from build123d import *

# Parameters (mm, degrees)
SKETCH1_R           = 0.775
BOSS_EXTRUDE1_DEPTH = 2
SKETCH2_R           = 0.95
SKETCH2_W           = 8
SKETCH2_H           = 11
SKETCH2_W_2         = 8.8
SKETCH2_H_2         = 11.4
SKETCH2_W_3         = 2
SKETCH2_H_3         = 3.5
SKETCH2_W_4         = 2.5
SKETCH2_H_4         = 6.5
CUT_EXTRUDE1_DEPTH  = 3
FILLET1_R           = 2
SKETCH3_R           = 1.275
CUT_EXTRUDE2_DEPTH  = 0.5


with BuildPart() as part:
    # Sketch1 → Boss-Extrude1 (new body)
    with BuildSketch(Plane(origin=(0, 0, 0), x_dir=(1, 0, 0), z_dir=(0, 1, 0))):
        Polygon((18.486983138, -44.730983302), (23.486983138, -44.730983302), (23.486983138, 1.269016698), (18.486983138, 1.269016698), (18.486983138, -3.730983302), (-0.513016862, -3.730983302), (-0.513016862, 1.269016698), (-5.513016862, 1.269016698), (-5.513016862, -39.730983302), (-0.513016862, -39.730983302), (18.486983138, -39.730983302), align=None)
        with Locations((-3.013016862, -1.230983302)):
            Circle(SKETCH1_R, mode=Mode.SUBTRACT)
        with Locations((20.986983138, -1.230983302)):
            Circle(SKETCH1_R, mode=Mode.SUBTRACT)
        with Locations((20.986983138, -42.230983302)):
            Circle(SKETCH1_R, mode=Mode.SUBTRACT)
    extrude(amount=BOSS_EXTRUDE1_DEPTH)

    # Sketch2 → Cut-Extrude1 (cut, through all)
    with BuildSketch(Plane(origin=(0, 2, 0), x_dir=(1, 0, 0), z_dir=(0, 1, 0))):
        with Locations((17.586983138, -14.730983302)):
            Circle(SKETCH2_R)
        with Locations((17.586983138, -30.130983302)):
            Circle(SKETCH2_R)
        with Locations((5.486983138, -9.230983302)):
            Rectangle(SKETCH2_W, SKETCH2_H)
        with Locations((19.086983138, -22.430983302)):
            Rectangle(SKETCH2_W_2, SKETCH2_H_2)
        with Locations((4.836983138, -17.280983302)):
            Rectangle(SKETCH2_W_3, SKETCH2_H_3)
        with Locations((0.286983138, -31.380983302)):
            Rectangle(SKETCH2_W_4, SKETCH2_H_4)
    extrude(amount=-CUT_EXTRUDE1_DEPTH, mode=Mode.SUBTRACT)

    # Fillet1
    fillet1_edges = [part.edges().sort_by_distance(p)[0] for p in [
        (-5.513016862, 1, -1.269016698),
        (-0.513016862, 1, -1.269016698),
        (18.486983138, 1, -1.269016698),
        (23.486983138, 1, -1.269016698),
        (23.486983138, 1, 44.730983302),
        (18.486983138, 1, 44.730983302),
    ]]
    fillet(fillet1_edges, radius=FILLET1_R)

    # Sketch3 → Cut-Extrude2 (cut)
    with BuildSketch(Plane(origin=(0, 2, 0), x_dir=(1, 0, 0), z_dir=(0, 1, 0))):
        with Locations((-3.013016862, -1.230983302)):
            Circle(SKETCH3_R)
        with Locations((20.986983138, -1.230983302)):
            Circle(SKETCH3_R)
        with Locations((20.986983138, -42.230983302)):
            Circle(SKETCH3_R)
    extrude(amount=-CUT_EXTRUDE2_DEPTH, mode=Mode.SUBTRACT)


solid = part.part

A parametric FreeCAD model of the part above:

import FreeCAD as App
import Part
import Sketcher

V = App.Vector


def edges_at(feature, points):
    """Names of the edges that pass closest to the given points."""
    edges = feature.Shape.Edges
    near = lambda p: min(range(len(edges)), key=lambda i: edges[i].distToShape(Part.Vertex(*p))[0])
    return sorted({f"Edge{near(p) + 1}" for p in points})


def add_polygon(sketch, points):
    """Adds a closed chain of lines whose ends are joined by coincident constraints."""
    first, n = sketch.GeometryCount, len(points)
    for a, b in zip(points, points[1:] + points[:1]):
        sketch.addGeometry(Part.LineSegment(App.Vector(*a, 0), App.Vector(*b, 0)), False)
    for i in range(n):
        sketch.addConstraint(Sketcher.Constraint("Coincident", first + i, 2, first + (i + 1) % n, 1))

doc = App.newDocument("Part")
body = doc.addObject("PartDesign::Body", "Body")

sketch1 = doc.addObject("Sketcher::SketchObject", "Sketch")
body.addObject(sketch1)
sketch1.AttachmentSupport = (doc.XZ_Plane, [""])
sketch1.MapMode = "FlatFace"
add_polygon(sketch1, [(18.486983, 44.730983), (23.486983, 44.730983), (23.486983, -1.269017), (18.486983, -1.269017), (18.486983, 3.730983), (-0.513017, 3.730983), (-0.513017, -1.269017), (-5.513017, -1.269017), (-5.513017, 39.730983), (18.486983, 39.730983)])
sketch1.addGeometry(Part.Circle(V(20.986983, 42.230983, 0), V(0, 0, 1), 0.775), False)
sketch1.addGeometry(Part.Circle(V(-3.013017, 1.230983, 0), V(0, 0, 1), 0.775), False)
sketch1.addGeometry(Part.Circle(V(20.986983, 1.230983, 0), V(0, 0, 1), 0.775), False)
sketch1.addConstraint(Sketcher.Constraint("Horizontal", 0))
sketch1.addConstraint(Sketcher.Constraint("Vertical", 1))
sketch1.addConstraint(Sketcher.Constraint("Horizontal", 2))
sketch1.addConstraint(Sketcher.Constraint("Vertical", 3))
sketch1.addConstraint(Sketcher.Constraint("Horizontal", 4))
sketch1.addConstraint(Sketcher.Constraint("Vertical", 5))
sketch1.addConstraint(Sketcher.Constraint("Horizontal", 6))
sketch1.addConstraint(Sketcher.Constraint("Vertical", 7))
sketch1.addConstraint(Sketcher.Constraint("Horizontal", 8))
sketch1.addConstraint(Sketcher.Constraint("Vertical", 9))
sketch1.addConstraint(Sketcher.Constraint("Equal", 10, 11))
sketch1.addConstraint(Sketcher.Constraint("Equal", 11, 12))
sketch1.addConstraint(Sketcher.Constraint("Horizontal", 11, 3, 12, 3))
sketch1.addConstraint(Sketcher.Constraint("Horizontal", 2, 2, 5, 2))
sketch1.addConstraint(Sketcher.Constraint("Vertical", 10, 3, 12, 3))
sketch1.addConstraint(Sketcher.Constraint("Vertical", 3, 2, 8, 2))
sketch1.addConstraint(Sketcher.Constraint("Equal", 2, 6))
sketch1.addConstraint(Sketcher.Constraint("Equal", 6, 3))
sketch1.addConstraint(Sketcher.Constraint("Equal", 5, 9))
sketch1.addConstraint(Sketcher.Constraint("Diameter", 10, 1.55))
sketch1.addConstraint(Sketcher.Constraint("DistanceX", 0, 1, 0, 2, 5.0))
sketch1.addConstraint(Sketcher.Constraint("DistanceX", 4, 2, 4, 1, 19.0))
sketch1.addConstraint(Sketcher.Constraint("DistanceY", 1, 2, 1, 1, 46.0))
sketch1.addConstraint(Sketcher.Constraint("DistanceX", 11, 3, 10, 3, 24.0))
sketch1.addConstraint(Sketcher.Constraint("DistanceY", 11, 3, 10, 3, 41.0))
sketch1.addConstraint(Sketcher.Constraint("DistanceX", 10, 3, 0, 2, 2.5))
sketch1.addConstraint(Sketcher.Constraint("DistanceY", 10, 3, 0, 2, 2.5))
sketch1.addConstraint(Sketcher.Constraint("DistanceX", -1, 1, 10, 3, 20.986983))
sketch1.addConstraint(Sketcher.Constraint("DistanceY", -1, 1, 10, 3, 42.230983))
pad1 = doc.addObject("PartDesign::Pad", "Pad")
body.addObject(pad1)
pad1.Profile = sketch1
pad1.Length = 2
pad1.Reversed = True

sketch2 = doc.addObject("Sketcher::SketchObject", "Sketch001")
body.addObject(sketch2)
sketch2.AttachmentSupport = (doc.XZ_Plane, [""])
sketch2.MapMode = "FlatFace"
sketch2.AttachmentOffset = App.Placement(V(0, 0, -2), App.Rotation())
sketch2.addGeometry(Part.Circle(V(17.586983, 14.730983, 0), V(0, 0, 1), 0.95), False)
sketch2.addGeometry(Part.Circle(V(17.586983, 30.130983, 0), V(0, 0, 1), 0.95), False)
add_polygon(sketch2, [(1.486983, 3.730983), (1.486983, 14.730983), (9.486983, 14.730983), (9.486983, 3.730983)])
add_polygon(sketch2, [(14.686983, 16.730983), (14.686983, 28.130983), (23.486983, 28.130983), (23.486983, 16.730983)])
add_polygon(sketch2, [(3.836983, 15.530983), (3.836983, 19.030983), (5.836983, 19.030983), (5.836983, 15.530983)])
add_polygon(sketch2, [(-0.963017, 28.130983), (-0.963017, 34.630983), (1.536983, 34.630983), (1.536983, 28.130983)])
sketch2.addConstraint(Sketcher.Constraint("Vertical", 2))
sketch2.addConstraint(Sketcher.Constraint("Horizontal", 3))
sketch2.addConstraint(Sketcher.Constraint("Vertical", 4))
sketch2.addConstraint(Sketcher.Constraint("Horizontal", 5))
sketch2.addConstraint(Sketcher.Constraint("Vertical", 6))
sketch2.addConstraint(Sketcher.Constraint("Horizontal", 7))
sketch2.addConstraint(Sketcher.Constraint("Vertical", 8))
sketch2.addConstraint(Sketcher.Constraint("Horizontal", 9))
sketch2.addConstraint(Sketcher.Constraint("Vertical", 10))
sketch2.addConstraint(Sketcher.Constraint("Horizontal", 11))
sketch2.addConstraint(Sketcher.Constraint("Vertical", 12))
sketch2.addConstraint(Sketcher.Constraint("Horizontal", 13))
sketch2.addConstraint(Sketcher.Constraint("Vertical", 14))
sketch2.addConstraint(Sketcher.Constraint("Horizontal", 15))
sketch2.addConstraint(Sketcher.Constraint("Vertical", 16))
sketch2.addConstraint(Sketcher.Constraint("Horizontal", 17))
sketch2.addConstraint(Sketcher.Constraint("Equal", 0, 1))
sketch2.addConstraint(Sketcher.Constraint("Horizontal", 0, 3, 2, 2))
sketch2.addConstraint(Sketcher.Constraint("Horizontal", 7, 2, 16, 2))
sketch2.addConstraint(Sketcher.Constraint("Vertical", 0, 3, 1, 3))
sketch2.addConstraint(Sketcher.Constraint("Diameter", 0, 1.9))
sketch2.addConstraint(Sketcher.Constraint("DistanceX", 3, 1, 3, 2, 8.0))
sketch2.addConstraint(Sketcher.Constraint("DistanceX", 11, 1, 11, 2, 2.0))
sketch2.addConstraint(Sketcher.Constraint("DistanceY", 2, 1, 2, 2, 11.0))
sketch2.addConstraint(Sketcher.Constraint("DistanceX", 7, 1, 7, 2, 8.8))
sketch2.addConstraint(Sketcher.Constraint("DistanceX", 15, 1, 15, 2, 2.5))
sketch2.addConstraint(Sketcher.Constraint("DistanceY", 6, 1, 6, 2, 11.4))
sketch2.addConstraint(Sketcher.Constraint("DistanceY", 10, 1, 10, 2, 3.5))
sketch2.addConstraint(Sketcher.Constraint("DistanceY", 14, 1, 14, 2, 6.5))
sketch2.addConstraint(Sketcher.Constraint("DistanceY", 6, 2, 1, 3, 2.0))
sketch2.addConstraint(Sketcher.Constraint("DistanceX", 3, 2, 7, 2, 14.0))
sketch2.addConstraint(Sketcher.Constraint("DistanceY", 0, 3, 8, 2, 2.0))
sketch2.addConstraint(Sketcher.Constraint("DistanceX", 2, 2, 0, 3, 16.1))
sketch2.addConstraint(Sketcher.Constraint("DistanceY", 2, 2, 10, 2, 4.3))
sketch2.addConstraint(Sketcher.Constraint("DistanceX", 14, 2, 10, 2, 4.8))
sketch2.addConstraint(Sketcher.Constraint("DistanceX", 2, 2, 10, 2, 2.35))
sketch2.addConstraint(Sketcher.Constraint("DistanceX", -1, 1, 0, 3, 17.586983))
sketch2.addConstraint(Sketcher.Constraint("DistanceY", -1, 1, 0, 3, 14.730983))
pocket1 = doc.addObject("PartDesign::Pocket", "Pocket")
body.addObject(pocket1)
pocket1.Profile = sketch2
pocket1.Type = "ThroughAll"
pocket1.Reversed = True
doc.recompute()

fillet = doc.addObject("PartDesign::Fillet", "Fillet")
body.addObject(fillet)
fillet.Base = (pocket1, edges_at(pocket1, [
    (-5.513, 1, -1.269),
    (-0.513, 1, -1.269),
    (18.487, 1, -1.269),
    (23.487, 1, -1.269),
    (23.487, 1, 44.731),
    (18.487, 1, 44.731),
]))
fillet.Radius = 2

sketch3 = doc.addObject("Sketcher::SketchObject", "Sketch002")
body.addObject(sketch3)
sketch3.AttachmentSupport = (doc.XZ_Plane, [""])
sketch3.MapMode = "FlatFace"
sketch3.AttachmentOffset = App.Placement(V(0, 0, -2), App.Rotation())
sketch3.addGeometry(Part.Circle(V(-3.013017, 1.230983, 0), V(0, 0, 1), 1.275), False)
sketch3.addGeometry(Part.Circle(V(20.986983, 1.230983, 0), V(0, 0, 1), 1.275), False)
sketch3.addGeometry(Part.Circle(V(20.986983, 42.230983, 0), V(0, 0, 1), 1.275), False)
sketch3.addConstraint(Sketcher.Constraint("Equal", 0, 1))
sketch3.addConstraint(Sketcher.Constraint("Equal", 1, 2))
sketch3.addConstraint(Sketcher.Constraint("Horizontal", 0, 3, 1, 3))
sketch3.addConstraint(Sketcher.Constraint("Vertical", 1, 3, 2, 3))
sketch3.addConstraint(Sketcher.Constraint("Diameter", 0, 2.55))
sketch3.addConstraint(Sketcher.Constraint("DistanceX", 0, 3, 1, 3, 24.0))
sketch3.addConstraint(Sketcher.Constraint("DistanceY", 1, 3, 2, 3, 41.0))
sketch3.addConstraint(Sketcher.Constraint("DistanceX", 0, 3, -1, 1, 3.013017))
sketch3.addConstraint(Sketcher.Constraint("DistanceY", -1, 1, 0, 3, 1.230983))
pocket2 = doc.addObject("PartDesign::Pocket", "Pocket001")
body.addObject(pocket2)
pocket2.Profile = sketch3
pocket2.Length = 0.5
pocket2.Reversed = True

doc.recompute()
